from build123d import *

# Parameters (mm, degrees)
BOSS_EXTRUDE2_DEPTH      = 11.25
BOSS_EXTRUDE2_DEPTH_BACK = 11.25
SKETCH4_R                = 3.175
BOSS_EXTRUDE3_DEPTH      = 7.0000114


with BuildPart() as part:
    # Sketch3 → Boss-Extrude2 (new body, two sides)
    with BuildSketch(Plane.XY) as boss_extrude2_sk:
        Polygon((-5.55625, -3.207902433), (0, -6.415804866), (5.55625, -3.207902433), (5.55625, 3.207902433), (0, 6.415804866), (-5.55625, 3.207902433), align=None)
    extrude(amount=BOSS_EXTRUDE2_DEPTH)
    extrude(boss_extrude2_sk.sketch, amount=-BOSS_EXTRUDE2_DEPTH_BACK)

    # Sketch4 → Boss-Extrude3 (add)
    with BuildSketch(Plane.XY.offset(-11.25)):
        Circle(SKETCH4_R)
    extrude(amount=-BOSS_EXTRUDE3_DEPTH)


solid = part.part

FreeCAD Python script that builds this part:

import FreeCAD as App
import Part
import Sketcher

V = App.Vector
Q = App.Units.Quantity


def add_polygon(sketch, points):
    """Adds a closed chain of lines whose ends are joined by coincident constraints."""
    first, n = sketch.GeometryCount, len(points)
    for a, b in zip(points, points[1:] + points[:1]):
        sketch.addGeometry(Part.LineSegment(App.Vector(*a, 0), App.Vector(*b, 0)), False)
    for i in range(n):
        sketch.addConstraint(Sketcher.Constraint("Coincident", first + i, 2, first + (i + 1) % n, 1))

doc = App.newDocument("Part")
body = doc.addObject("PartDesign::Body", "Body")

# Sketch on XY plane
sketch1 = doc.addObject("Sketcher::SketchObject", "Sketch")
body.addObject(sketch1)
sketch1.AttachmentSupport = (doc.XY_Plane, [""])
sketch1.MapMode = "FlatFace"
add_polygon(sketch1, [(-5.55625, -3.207902), (0, -6.415805), (5.55625, -3.207902), (5.55625, 3.207902), (0, 6.415805), (-5.55625, 3.207902)])  # lines 0-5
sketch1.addConstraint([
    Sketcher.Constraint("Vertical", 2),
    Sketcher.Constraint("Vertical", 5),
    Sketcher.Constraint("Symmetric", 0, 2, 3, 2, -1, 1),
    Sketcher.Constraint("Symmetric", 1, 2, 4, 2, -1, 1),
    Sketcher.Constraint("PointOnObject", 0, 2, -2),
    Sketcher.Constraint("Parallel", 0, 3),
    Sketcher.Constraint("Horizontal", 2, 2, 4, 2),
    Sketcher.Constraint("Angle", 0, Q("-30 deg")),
    Sketcher.Constraint("DistanceX", -1, 1, 1, 2, Q("0.21875 in")),
    Sketcher.Constraint("DistanceY", 2, 1, 2, 2, Q("6.415805 mm")),
])
pad1 = doc.addObject("PartDesign::Pad", "Pad")
body.addObject(pad1)
pad1.Profile = sketch1
pad1.Type = "TwoLengths"
pad1.Length = 11.25
pad1.Length2 = 11.25

# Sketch on XY plane
sketch2 = doc.addObject("Sketcher::SketchObject", "Sketch001")
body.addObject(sketch2)
sketch2.AttachmentSupport = (doc.XY_Plane, [""])
sketch2.MapMode = "FlatFace"
sketch2.AttachmentOffset = App.Placement(V(0, 0, -11.25), App.Rotation())
sketch2.addGeometry(Part.Circle(V(0, 0, 0), V(0, 0, 1), 3.175), False)
sketch2.addConstraint([
    Sketcher.Constraint("Coincident", 0, 3, -1, 1),
    Sketcher.Constraint("Diameter", 0, Q("0.25 in")),
])
pad2 = doc.addObject("PartDesign::Pad", "Pad001")
body.addObject(pad2)
pad2.Profile = sketch2
pad2.Length = 7.000011
pad2.Reversed = True

doc.recompute()
